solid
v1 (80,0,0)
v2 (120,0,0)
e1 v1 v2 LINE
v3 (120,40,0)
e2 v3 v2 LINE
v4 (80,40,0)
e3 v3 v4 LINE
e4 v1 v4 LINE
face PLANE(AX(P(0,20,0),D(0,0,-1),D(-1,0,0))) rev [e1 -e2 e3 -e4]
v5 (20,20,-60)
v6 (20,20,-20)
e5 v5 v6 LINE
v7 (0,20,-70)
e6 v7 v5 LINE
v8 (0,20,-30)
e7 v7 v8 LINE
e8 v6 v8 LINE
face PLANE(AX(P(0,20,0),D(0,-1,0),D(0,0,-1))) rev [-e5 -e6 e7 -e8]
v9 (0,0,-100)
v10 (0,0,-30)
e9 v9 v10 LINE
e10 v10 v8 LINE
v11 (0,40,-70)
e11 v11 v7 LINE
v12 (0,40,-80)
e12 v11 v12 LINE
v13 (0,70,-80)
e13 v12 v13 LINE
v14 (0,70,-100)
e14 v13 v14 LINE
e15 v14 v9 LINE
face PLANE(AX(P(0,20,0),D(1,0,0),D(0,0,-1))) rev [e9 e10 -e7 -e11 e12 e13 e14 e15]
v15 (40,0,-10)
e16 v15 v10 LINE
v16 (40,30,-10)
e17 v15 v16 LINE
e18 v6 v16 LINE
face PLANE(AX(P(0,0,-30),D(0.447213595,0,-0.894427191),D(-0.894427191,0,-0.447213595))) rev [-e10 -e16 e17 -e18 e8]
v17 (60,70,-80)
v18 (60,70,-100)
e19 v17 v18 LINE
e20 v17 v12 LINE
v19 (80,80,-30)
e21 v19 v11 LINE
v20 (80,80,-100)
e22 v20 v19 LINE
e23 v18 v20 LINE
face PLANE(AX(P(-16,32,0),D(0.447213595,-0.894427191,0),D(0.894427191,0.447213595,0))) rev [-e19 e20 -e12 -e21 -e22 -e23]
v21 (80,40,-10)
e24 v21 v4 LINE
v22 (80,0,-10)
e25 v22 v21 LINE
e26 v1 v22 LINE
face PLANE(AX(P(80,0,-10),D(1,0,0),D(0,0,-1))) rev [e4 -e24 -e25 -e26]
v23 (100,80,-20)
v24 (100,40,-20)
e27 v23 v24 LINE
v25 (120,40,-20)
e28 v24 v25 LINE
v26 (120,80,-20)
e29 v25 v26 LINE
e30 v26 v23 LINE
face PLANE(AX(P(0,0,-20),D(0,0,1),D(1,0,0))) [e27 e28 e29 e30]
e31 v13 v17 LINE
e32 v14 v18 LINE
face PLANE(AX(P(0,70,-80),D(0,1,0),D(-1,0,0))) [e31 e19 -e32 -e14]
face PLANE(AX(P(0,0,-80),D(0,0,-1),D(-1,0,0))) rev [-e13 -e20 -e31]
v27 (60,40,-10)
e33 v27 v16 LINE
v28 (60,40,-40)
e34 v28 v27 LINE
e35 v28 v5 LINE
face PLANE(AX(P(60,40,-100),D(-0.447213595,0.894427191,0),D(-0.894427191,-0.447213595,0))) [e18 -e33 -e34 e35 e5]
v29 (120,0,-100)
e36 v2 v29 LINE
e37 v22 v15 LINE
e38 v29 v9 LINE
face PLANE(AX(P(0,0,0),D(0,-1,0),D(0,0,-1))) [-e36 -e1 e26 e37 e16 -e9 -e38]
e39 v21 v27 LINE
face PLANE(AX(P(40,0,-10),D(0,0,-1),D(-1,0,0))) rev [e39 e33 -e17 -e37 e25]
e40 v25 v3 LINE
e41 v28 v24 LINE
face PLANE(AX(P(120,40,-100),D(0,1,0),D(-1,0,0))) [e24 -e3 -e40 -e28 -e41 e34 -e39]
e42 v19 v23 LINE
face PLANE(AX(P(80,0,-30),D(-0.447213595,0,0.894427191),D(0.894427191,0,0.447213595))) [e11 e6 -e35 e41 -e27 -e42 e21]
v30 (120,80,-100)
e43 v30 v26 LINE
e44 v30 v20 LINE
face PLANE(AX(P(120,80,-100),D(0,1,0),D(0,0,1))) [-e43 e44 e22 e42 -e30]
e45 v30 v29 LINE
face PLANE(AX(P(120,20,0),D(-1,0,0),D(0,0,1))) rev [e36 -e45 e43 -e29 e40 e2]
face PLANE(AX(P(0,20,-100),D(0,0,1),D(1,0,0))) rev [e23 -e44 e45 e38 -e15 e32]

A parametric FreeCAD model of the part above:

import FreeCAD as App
import Part
import Sketcher
from FreeCAD import Vector

doc = App.newDocument("Part")
body = doc.addObject("PartDesign::Body", "Body")

sketch1 = body.newObject("Sketcher::SketchObject", "Sketch")
sketch1.AttachmentSupport = (doc.getObject("XZ_Plane"), [""])
sketch1.MapMode = "FlatFace"
sketch1.addGeometry([
    Part.LineSegment(Vector(0, -100, 0), Vector(0, 0, 0)),
    Part.LineSegment(Vector(0, 0, 0), Vector(120, 0, 0)),
    Part.LineSegment(Vector(120, 0, 0), Vector(120, -100, 0)),
    Part.LineSegment(Vector(120, -100, 0), Vector(0, -100, 0)),
], False)
sketch1.addConstraint([
    Sketcher.Constraint("Coincident", 0, 2, 1, 1),
    Sketcher.Constraint("Coincident", 1, 2, 2, 1),
    Sketcher.Constraint("Coincident", 2, 2, 3, 1),
    Sketcher.Constraint("Coincident", 3, 2, 0, 1),
    Sketcher.Constraint("Vertical", 0),
    Sketcher.Constraint("Horizontal", 1),
    Sketcher.Constraint("Vertical", 2),
    Sketcher.Constraint("Horizontal", 3),
    Sketcher.Constraint("Coincident", 0, 2, -1, 1),
    Sketcher.Constraint("DistanceX", 1, 1, 1, 2, 120.0),
    Sketcher.Constraint("DistanceY", 0, 1, 0, 2, 100.0),
])
pad1 = body.newObject("PartDesign::Pad", "Pad")
pad1.Profile = sketch1
pad1.Length = 20
pad1.Reversed = True

sketch2 = body.newObject("Sketcher::SketchObject", "Sketch001")
sketch2.AttachmentSupport = (doc.getObject("XZ_Plane"), [""])
sketch2.MapMode = "FlatFace"
sketch2.AttachmentOffset = App.Placement(Vector(0, 0, -20), App.Rotation())
sketch2.addGeometry([
    Part.LineSegment(Vector(40, -10, 0), Vector(0, -30, 0)),
    Part.LineSegment(Vector(0, -30, 0), Vector(0, 0, 0)),
    Part.LineSegment(Vector(0, 0, 0), Vector(80, 0, 0)),
    Part.LineSegment(Vector(80, 0, 0), Vector(80, -10, 0)),
    Part.LineSegment(Vector(80, -10, 0), Vector(40, -10, 0)),
], False)
sketch2.addConstraint([
    Sketcher.Constraint("Coincident", 0, 2, 1, 1),
    Sketcher.Constraint("Coincident", 1, 2, 2, 1),
    Sketcher.Constraint("Coincident", 2, 2, 3, 1),
    Sketcher.Constraint("Coincident", 3, 2, 4, 1),
    Sketcher.Constraint("Coincident", 4, 2, 0, 1),
    Sketcher.Constraint("Vertical", 1),
    Sketcher.Constraint("Horizontal", 2),
    Sketcher.Constraint("Vertical", 3),
    Sketcher.Constraint("Horizontal", 4),
    Sketcher.Constraint("Coincident", 1, 2, -1, 1),
    Sketcher.Constraint("DistanceX", 2, 1, 2, 2, 80.0),
    Sketcher.Constraint("DistanceX", 4, 2, 4, 1, 40.0),
    Sketcher.Constraint("DistanceY", 1, 1, 1, 2, 30.0),
    Sketcher.Constraint("DistanceY", 3, 2, 3, 1, 10.0),
])
pocket1 = body.newObject("PartDesign::Pocket", "Pocket")
pocket1.Profile = sketch2
pocket1.Length = 20
pocket1.Reversed = True

sketch3 = body.newObject("Sketcher::SketchObject", "Sketch002")
sketch3.AttachmentSupport = (doc.getObject("XY_Plane"), [""])
sketch3.MapMode = "FlatFace"
sketch3.addGeometry([
    Part.LineSegment(Vector(80, 40, 0), Vector(80, 0, 0)),
    Part.LineSegment(Vector(80, 0, 0), Vector(120, 0, 0)),
    Part.LineSegment(Vector(120, 0, 0), Vector(120, 40, 0)),
    Part.LineSegment(Vector(120, 40, 0), Vector(80, 40, 0)),
], False)
sketch3.addConstraint([
    Sketcher.Constraint("Coincident", 0, 2, 1, 1),
    Sketcher.Constraint("Coincident", 1, 2, 2, 1),
    Sketcher.Constraint("Coincident", 2, 2, 3, 1),
    Sketcher.Constraint("Coincident", 3, 2, 0, 1),
    Sketcher.Constraint("Vertical", 0),
    Sketcher.Constraint("Horizontal", 1),
    Sketcher.Constraint("Vertical", 2),
    Sketcher.Constraint("Horizontal", 3),
    Sketcher.Constraint("PointOnObject", 0, 2, -1),
    Sketcher.Constraint("Equal", 3, 0),
    Sketcher.Constraint("DistanceX", 1, 1, 1, 2, 40.0),
    Sketcher.Constraint("DistanceX", -1, 1, 0, 2, 80.0),
])
pad2 = body.newObject("PartDesign::Pad", "Pad001")
pad2.Profile = sketch3
pad2.Length = 100
pad2.Reversed = True

sketch4 = body.newObject("Sketcher::SketchObject", "Sketch003")
sketch4.AttachmentSupport = (doc.getObject("XY_Plane"), [""])
sketch4.MapMode = "FlatFace"
sketch4.AttachmentOffset = App.Placement(Vector(0, 0, -10), App.Rotation())
sketch4.addGeometry([
    Part.LineSegment(Vector(80, 20, 0), Vector(80, 40, 0)),
    Part.LineSegment(Vector(80, 40, 0), Vector(60, 40, 0)),
    Part.LineSegment(Vector(60, 40, 0), Vector(40, 30, 0)),
    Part.LineSegment(Vector(40, 30, 0), Vector(40, 20, 0)),
    Part.LineSegment(Vector(40, 20, 0), Vector(80, 20, 0)),
], False)
sketch4.addConstraint([
    Sketcher.Constraint("Coincident", 0, 2, 1, 1),
    Sketcher.Constraint("Coincident", 1, 2, 2, 1),
    Sketcher.Constraint("Coincident", 2, 2, 3, 1),
    Sketcher.Constraint("Coincident", 3, 2, 4, 1),
    Sketcher.Constraint("Coincident", 4, 2, 0, 1),
    Sketcher.Constraint("Vertical", 0),
    Sketcher.Constraint("Horizontal", 1),
    Sketcher.Constraint("Vertical", 3),
    Sketcher.Constraint("Horizontal", 4),
    Sketcher.Constraint("Equal", 1, 0),
    Sketcher.Constraint("DistanceX", 1, 2, 1, 1, 20.0),
    Sketcher.Constraint("DistanceX", 4, 1, 4, 2, 40.0),
    Sketcher.Constraint("DistanceY", 3, 2, 3, 1, 10.0),
    Sketcher.Constraint("DistanceX", -1, 1, 0, 2, 80.0),
    Sketcher.Constraint("DistanceY", -1, 1, 0, 2, 40.0),
])
pad3 = body.newObject("PartDesign::Pad", "Pad002")
pad3.Profile = sketch4
pad3.Length = 90
pad3.Reversed = True

sketch5 = body.newObject("Sketcher::SketchObject", "Sketch004")
sketch5.AttachmentSupport = (doc.getObject("XY_Plane"), [""])
sketch5.MapMode = "FlatFace"
sketch5.AttachmentOffset = App.Placement(Vector(0, 0, -20), App.Rotation())
sketch5.addGeometry([
    Part.LineSegment(Vector(100, 80, 0), Vector(100, 40, 0)),
    Part.LineSegment(Vector(100, 40, 0), Vector(120, 40, 0)),
    Part.LineSegment(Vector(120, 40, 0), Vector(120, 80, 0)),
    Part.LineSegment(Vector(120, 80, 0), Vector(100, 80, 0)),
], False)
sketch5.addConstraint([
    Sketcher.Constraint("Coincident", 0, 2, 1, 1),
    Sketcher.Constraint("Coincident", 1, 2, 2, 1),
    Sketcher.Constraint("Coincident", 2, 2, 3, 1),
    Sketcher.Constraint("Coincident", 3, 2, 0, 1),
    Sketcher.Constraint("Vertical", 0),
    Sketcher.Constraint("Horizontal", 1),
    Sketcher.Constraint("Vertical", 2),
    Sketcher.Constraint("Horizontal", 3),
    Sketcher.Constraint("DistanceX", 1, 1, 1, 2, 20.0),
    Sketcher.Constraint("DistanceY", 0, 2, 0, 1, 40.0),
    Sketcher.Constraint("DistanceX", -1, 1, 0, 2, 100.0),
    Sketcher.Constraint("DistanceY", -1, 1, 0, 2, 40.0),
])
pad4 = body.newObject("PartDesign::Pad", "Pad003")
pad4.Profile = sketch5
pad4.Length = 80
pad4.Reversed = True

sketch6 = body.newObject("Sketcher::SketchObject", "Sketch005")
sketch6.AttachmentSupport = (doc.getObject("XZ_Plane"), [""])
sketch6.MapMode = "FlatFace"
sketch6.AttachmentOffset = App.Placement(Vector(0, 0, -80), App.Rotation())
sketch6.addGeometry([
    Part.LineSegment(Vector(100, -100, 0), Vector(80, -100, 0)),
    Part.LineSegment(Vector(80, -100, 0), Vector(80, -30, 0)),
    Part.LineSegment(Vector(80, -30, 0), Vector(100, -20, 0)),
    Part.LineSegment(Vector(100, -20, 0), Vector(100, -100, 0)),
], False)
sketch6.addConstraint([
    Sketcher.Constraint("Coincident", 0, 2, 1, 1),
    Sketcher.Constraint("Coincident", 1, 2, 2, 1),
    Sketcher.Constraint("Coincident", 2, 2, 3, 1),
    Sketcher.Constraint("Coincident", 3, 2, 0, 1),
    Sketcher.Constraint("Horizontal", 0),
    Sketcher.Constraint("Vertical", 1),
    Sketcher.Constraint("Vertical", 3),
    Sketcher.Constraint("DistanceX", 0, 2, 0, 1, 20.0),
    Sketcher.Constraint("DistanceY", 1, 1, 1, 2, 70.0),
    Sketcher.Constraint("DistanceY", 3, 2, 3, 1, 80.0),
    Sketcher.Constraint("DistanceX", -1, 1, 0, 2, 80.0),
    Sketcher.Constraint("DistanceY", 0, 2, -1, 1, 100.0),
])
pad5 = body.newObject("PartDesign::Pad", "Pad004")
pad5.Profile = sketch6
pad5.Length = 80

sketch7 = body.newObject("Sketcher::SketchObject", "Sketch006")
sketch7.AttachmentSupport = (doc.getObject("XY_Plane"), [""])
sketch7.MapMode = "FlatFace"
sketch7.AttachmentOffset = App.Placement(Vector(0, 0, -100), App.Rotation())
sketch7.addGeometry([
    Part.LineSegment(Vector(60, 70, 0), Vector(60, 20, 0)),
    Part.LineSegment(Vector(60, 20, 0), Vector(0, 20, 0)),
    Part.LineSegment(Vector(0, 20, 0), Vector(0, 70, 0)),
    Part.LineSegment(Vector(0, 70, 0), Vector(60, 70, 0)),
], False)
sketch7.addConstraint([
    Sketcher.Constraint("Coincident", 0, 2, 1, 1),
    Sketcher.Constraint("Coincident", 1, 2, 2, 1),
    Sketcher.Constraint("Coincident", 2, 2, 3, 1),
    Sketcher.Constraint("Coincident", 3, 2, 0, 1),
    Sketcher.Constraint("Vertical", 0),
    Sketcher.Constraint("Horizontal", 1),
    Sketcher.Constraint("Vertical", 2),
    Sketcher.Constraint("Horizontal", 3),
    Sketcher.Constraint("PointOnObject", 1, 2, -2),
    Sketcher.Constraint("DistanceX", 1, 2, 1, 1, 60.0),
    Sketcher.Constraint("DistanceY", 0, 2, 0, 1, 50.0),
    Sketcher.Constraint("DistanceY", -1, 1, 0, 2, 20.0),
])
pad6 = body.newObject("PartDesign::Pad", "Pad005")
pad6.Profile = sketch7
pad6.Length = 20

sketch8 = body.newObject("Sketcher::SketchObject", "Sketch007")
sketch8.AttachmentSupport = (doc.getObject("XY_Plane"), [""])
sketch8.MapMode = "FlatFace"
sketch8.AttachmentOffset = App.Placement(Vector(0, 0, -80), App.Rotation())
sketch8.addGeometry([
    Part.LineSegment(Vector(0, 40, 0), Vector(0, 20, 0)),
    Part.LineSegment(Vector(0, 20, 0), Vector(10, 20, 0)),
    Part.LineSegment(Vector(10, 20, 0), Vector(10, 40, 0)),
    Part.LineSegment(Vector(10, 40, 0), Vector(0, 40, 0)),
], False)
sketch8.addConstraint([
    Sketcher.Constraint("Coincident", 0, 2, 1, 1),
    Sketcher.Constraint("Coincident", 1, 2, 2, 1),
    Sketcher.Constraint("Coincident", 2, 2, 3, 1),
    Sketcher.Constraint("Coincident", 3, 2, 0, 1),
    Sketcher.Constraint("Vertical", 0),
    Sketcher.Constraint("Horizontal", 1),
    Sketcher.Constraint("Vertical", 2),
    Sketcher.Constraint("Horizontal", 3),
    Sketcher.Constraint("PointOnObject", 0, 2, -2),
    Sketcher.Constraint("DistanceX", 1, 1, 1, 2, 10.0),
    Sketcher.Constraint("DistanceY", 0, 2, 0, 1, 20.0),
    Sketcher.Constraint("DistanceY", -1, 1, 0, 2, 20.0),
])
pad7 = body.newObject("PartDesign::Pad", "Pad006")
pad7.Profile = sketch8
pad7.Length = 10

sketch9 = body.newObject("Sketcher::SketchObject", "Sketch008")
sketch9.Placement = App.Placement(Vector(-16, 32, 0), App.Rotation(Vector(-0.894427191, -0.447213595, 0), Vector(0, 0, -1), Vector(0.447213595, -0.894427191, 0), "ZXY"))
sketch9.addGeometry([
    Part.LineSegment(Vector(-107.331263, 100, 0), Vector(-107.331263, 30, 0)),
    Part.LineSegment(Vector(-107.331263, 30, 0), Vector(-17.888544, 70, 0)),
    Part.LineSegment(Vector(-17.888544, 70, 0), Vector(-17.888544, 80, 0)),
    Part.LineSegment(Vector(-17.888544, 80, 0), Vector(-107.331263, 100, 0)),
], False)
sketch9.addConstraint([
    Sketcher.Constraint("Coincident", 0, 2, 1, 1),
    Sketcher.Constraint("Coincident", 1, 2, 2, 1),
    Sketcher.Constraint("Coincident", 2, 2, 3, 1),
    Sketcher.Constraint("Coincident", 3, 2, 0, 1),
    Sketcher.Constraint("Vertical", 0),
    Sketcher.Constraint("Vertical", 2),
    Sketcher.Constraint("DistanceY", 0, 2, 0, 1, 70.0),
    Sketcher.Constraint("DistanceY", 2, 1, 2, 2, 10.0),
    Sketcher.Constraint("DistanceY", -1, 1, 0, 2, 30.0),
    Sketcher.Constraint("DistanceY", -1, 1, 1, 2, 70.0),
    Sketcher.Constraint("Distance", 1, 97.97959),
    Sketcher.Constraint("DistanceX", 0, 2, -1, 1, 107.331263),
])
pad8 = body.newObject("PartDesign::Pad", "Pad007")
pad8.Profile = sketch9
pad8.Length = 42

sketch10 = body.newObject("Sketcher::SketchObject", "Sketch009")
sketch10.AttachmentSupport = (doc.getObject("XY_Plane"), [""])
sketch10.MapMode = "FlatFace"
sketch10.AttachmentOffset = App.Placement(Vector(0, 0, -100), App.Rotation())
sketch10.addGeometry([
    Part.LineSegment(Vector(80, 40, 0), Vector(60, 40, 0)),
    Part.LineSegment(Vector(60, 40, 0), Vector(60, 70, 0)),
    Part.LineSegment(Vector(60, 70, 0), Vector(80, 80, 0)),
    Part.LineSegment(Vector(80, 80, 0), Vector(80, 40, 0)),
], False)
sketch10.addConstraint([
    Sketcher.Constraint("Coincident", 0, 2, 1, 1),
    Sketcher.Constraint("Coincident", 1, 2, 2, 1),
    Sketcher.Constraint("Coincident", 2, 2, 3, 1),
    Sketcher.Constraint("Coincident", 3, 2, 0, 1),
    Sketcher.Constraint("Horizontal", 0),
    Sketcher.Constraint("Vertical", 1),
    Sketcher.Constraint("Vertical", 3),
    Sketcher.Constraint("DistanceX", 0, 2, 0, 1, 20.0),
    Sketcher.Constraint("DistanceY", 1, 1, 1, 2, 30.0),
    Sketcher.Constraint("DistanceY", 3, 2, 3, 1, 40.0),
    Sketcher.Constraint("DistanceX", -1, 1, 0, 2, 60.0),
    Sketcher.Constraint("DistanceY", -1, 1, 0, 2, 40.0),
])
pad9 = body.newObject("PartDesign::Pad", "Pad008")
pad9.Profile = sketch10
pad9.Length = 42

sketch11 = body.newObject("Sketcher::SketchObject", "Sketch010")
sketch11.Placement = App.Placement(Vector(28, 0, -56), App.Rotation(Vector(0.894427191, 0, 0.447213595), Vector(0, 1, 0), Vector(-0.447213595, 0, 0.894427191), "ZXY"))
sketch11.addGeometry([
    Part.LineSegment(Vector(58.137767, 40, 0), Vector(58.137767, 80, 0)),
    Part.LineSegment(Vector(58.137767, 80, 0), Vector(-31.304952, 40, 0)),
    Part.LineSegment(Vector(-31.304952, 40, 0), Vector(-31.304952, 20, 0)),
    Part.LineSegment(Vector(-31.304952, 20, 0), Vector(58.137767, 40, 0)),
], False)
sketch11.addConstraint([
    Sketcher.Constraint("Coincident", 0, 2, 1, 1),
    Sketcher.Constraint("Coincident", 1, 2, 2, 1),
    Sketcher.Constraint("Coincident", 2, 2, 3, 1),
    Sketcher.Constraint("Coincident", 3, 2, 0, 1),
    Sketcher.Constraint("Vertical", 0),
    Sketcher.Constraint("Vertical", 2),
    Sketcher.Constraint("Horizontal", 1, 2, 3, 2),
    Sketcher.Constraint("DistanceY", 0, 1, 0, 2, 40.0),
    Sketcher.Constraint("DistanceY", 2, 2, 2, 1, 20.0),
    Sketcher.Constraint("DistanceY", -1, 1, 0, 2, 80.0),
    Sketcher.Constraint("Distance", 1, 97.97959),
    Sketcher.Constraint("DistanceX", 1, 2, -1, 1, 31.304952),
])
pad10 = body.newObject("PartDesign::Pad", "Pad009")
pad10.Profile = sketch11
pad10.Length = 30
pad10.Reversed = True

sketch12 = body.newObject("Sketcher::SketchObject", "Sketch011")
sketch12.Placement = App.Placement(Vector(28, 0, -56), App.Rotation(Vector(0.894427191, 0, 0.447213595), Vector(0, 1, 0), Vector(-0.447213595, 0, 0.894427191), "ZXY"))
sketch12.addGeometry([
    Part.LineSegment(Vector(13.416408, 30, 0), Vector(-31.304952, 20, 0)),
    Part.LineSegment(Vector(-31.304952, 20, 0), Vector(13.416408, 20, 0)),
    Part.LineSegment(Vector(13.416408, 20, 0), Vector(13.416408, 30, 0)),
], False)
sketch12.addConstraint([
    Sketcher.Constraint("Coincident", 0, 2, 1, 1),
    Sketcher.Constraint("Coincident", 1, 2, 2, 1),
    Sketcher.Constraint("Coincident", 2, 2, 0, 1),
    Sketcher.Constraint("Horizontal", 1),
    Sketcher.Constraint("Vertical", 2),
    Sketcher.Constraint("DistanceY", 2, 1, 2, 2, 10.0),
    Sketcher.Constraint("DistanceY", -1, 1, 0, 2, 20.0),
    Sketcher.Constraint("DistanceX", 1, 1, 1, 2, 44.72136),
    Sketcher.Constraint("DistanceX", 0, 2, -1, 1, 31.304952),
])
pad11 = body.newObject("PartDesign::Pad", "Pad010")
pad11.Profile = sketch12
pad11.Length = 30
pad11.Reversed = True

sketch13 = body.newObject("Sketcher::SketchObject", "Sketch012")
sketch13.Placement = App.Placement(Vector(-4, 8, 0), App.Rotation(Vector(0.894427191, 0.447213595, 0), Vector(0, 0, -1), Vector(-0.447213595, 0.894427191, 0), "ZXY"))
sketch13.addGeometry([
    Part.LineSegment(Vector(26.832816, 20, 0), Vector(71.554175, 10, 0)),
    Part.LineSegment(Vector(71.554175, 10, 0), Vector(71.554175, 40, 0)),
    Part.LineSegment(Vector(71.554175, 40, 0), Vector(26.832816, 60, 0)),
    Part.LineSegment(Vector(26.832816, 60, 0), Vector(26.832816, 20, 0)),
], False)
sketch13.addConstraint([
    Sketcher.Constraint("Coincident", 0, 2, 1, 1),
    Sketcher.Constraint("Coincident", 1, 2, 2, 1),
    Sketcher.Constraint("Coincident", 2, 2, 3, 1),
    Sketcher.Constraint("Coincident", 3, 2, 0, 1),
    Sketcher.Constraint("Vertical", 1),
    Sketcher.Constraint("Vertical", 3),
    Sketcher.Constraint("DistanceY", 1, 1, 1, 2, 30.0),
    Sketcher.Constraint("DistanceY", 3, 2, 3, 1, 40.0),
    Sketcher.Constraint("DistanceY", -1, 1, 0, 2, 10.0),
    Sketcher.Constraint("DistanceY", -1, 1, 2, 2, 60.0),
    Sketcher.Constraint("DistanceX", 2, 2, 1, 2, 44.72136),
    Sketcher.Constraint("DistanceX", -1, 1, 0, 2, 71.554175),
])
pad12 = body.newObject("PartDesign::Pad", "Pad011")
pad12.Profile = sketch13
pad12.Length = 30
pad12.Reversed = True

sketch14 = body.newObject("Sketcher::SketchObject", "Sketch013")
sketch14.Placement = App.Placement(Vector(-4, 8, 0), App.Rotation(Vector(0.894427191, 0.447213595, 0), Vector(0, 0, -1), Vector(-0.447213595, 0.894427191, 0), "ZXY"))
sketch14.addGeometry([
    Part.LineSegment(Vector(26.832816, 20, 0), Vector(49.193495, 10, 0)),
    Part.LineSegment(Vector(49.193495, 10, 0), Vector(49.193495, 15, 0)),
    Part.LineSegment(Vector(49.193495, 15, 0), Vector(26.832816, 20, 0)),
], False)
sketch14.addConstraint([
    Sketcher.Constraint("Coincident", 0, 2, 1, 1),
    Sketcher.Constraint("Coincident", 1, 2, 2, 1),
    Sketcher.Constraint("Coincident", 2, 2, 0, 1),
    Sketcher.Constraint("Vertical", 1),
    Sketcher.Constraint("DistanceY", 1, 1, 1, 2, 5.0),
    Sketcher.Constraint("DistanceY", -1, 1, 0, 2, 10.0),
    Sketcher.Constraint("DistanceY", -1, 1, 2, 2, 20.0),
    Sketcher.Constraint("Distance", 2, 22.912878),
    Sketcher.Constraint("DistanceX", -1, 1, 0, 2, 49.193495),
])
pad13 = body.newObject("PartDesign::Pad", "Pad012")
pad13.Profile = sketch14
pad13.Length = 30
pad13.Reversed = True

sketch15 = body.newObject("Sketcher::SketchObject", "Sketch014")
sketch15.Placement = App.Placement(Vector(12, 0, -24), App.Rotation(Vector(0.894427191, 0, 0.447213595), Vector(0, 1, 0), Vector(-0.447213595, 0, 0.894427191), "ZXY"))
sketch15.addGeometry([
    Part.LineSegment(Vector(31.304952, 30, 0), Vector(8.944272, 20, 0)),
    Part.LineSegment(Vector(8.944272, 20, 0), Vector(31.304952, 20, 0)),
    Part.LineSegment(Vector(31.304952, 20, 0), Vector(31.304952, 30, 0)),
], False)
sketch15.addConstraint([
    Sketcher.Constraint("Coincident", 0, 2, 1, 1),
    Sketcher.Constraint("Coincident", 1, 2, 2, 1),
    Sketcher.Constraint("Coincident", 2, 2, 0, 1),
    Sketcher.Constraint("Horizontal", 1),
    Sketcher.Constraint("Vertical", 2),
    Sketcher.Constraint("DistanceY", 2, 1, 2, 2, 10.0),
    Sketcher.Constraint("DistanceY", -1, 1, 0, 2, 20.0),
    Sketcher.Constraint("DistanceX", 1, 1, 1, 2, 22.36068),
    Sketcher.Constraint("DistanceX", -1, 1, 0, 2, 8.944272),
])
pad14 = body.newObject("PartDesign::Pad", "Pad013")
pad14.Profile = sketch15
pad14.Length = 30
pad14.Reversed = True

sketch16 = body.newObject("Sketcher::SketchObject", "Sketch015")
sketch16.AttachmentSupport = (doc.getObject("XZ_Plane"), [""])
sketch16.MapMode = "FlatFace"
sketch16.addGeometry([
    Part.LineSegment(Vector(0, 0, 0), Vector(0, -100, 0)),
    Part.LineSegment(Vector(0, -100, 0), Vector(120, -100, 0)),
    Part.LineSegment(Vector(120, -100, 0), Vector(120, 0, 0)),
    Part.LineSegment(Vector(120, 0, 0), Vector(0, 0, 0)),
], False)
sketch16.addConstraint([
    Sketcher.Constraint("Coincident", 0, 2, 1, 1),
    Sketcher.Constraint("Coincident", 1, 2, 2, 1),
    Sketcher.Constraint("Coincident", 2, 2, 3, 1),
    Sketcher.Constraint("Coincident", 3, 2, 0, 1),
    Sketcher.Constraint("Vertical", 0),
    Sketcher.Constraint("Horizontal", 1),
    Sketcher.Constraint("Vertical", 2),
    Sketcher.Constraint("Horizontal", 3),
    Sketcher.Constraint("Coincident", 3, 2, -1, 1),
    Sketcher.Constraint("DistanceX", 1, 1, 1, 2, 120.0),
    Sketcher.Constraint("DistanceY", 0, 2, 0, 1, 100.0),
])
pocket2 = body.newObject("PartDesign::Pocket", "Pocket001")
pocket2.Profile = sketch16
pocket2.Length = 30
pocket2.Reversed = True

doc.recompute()
